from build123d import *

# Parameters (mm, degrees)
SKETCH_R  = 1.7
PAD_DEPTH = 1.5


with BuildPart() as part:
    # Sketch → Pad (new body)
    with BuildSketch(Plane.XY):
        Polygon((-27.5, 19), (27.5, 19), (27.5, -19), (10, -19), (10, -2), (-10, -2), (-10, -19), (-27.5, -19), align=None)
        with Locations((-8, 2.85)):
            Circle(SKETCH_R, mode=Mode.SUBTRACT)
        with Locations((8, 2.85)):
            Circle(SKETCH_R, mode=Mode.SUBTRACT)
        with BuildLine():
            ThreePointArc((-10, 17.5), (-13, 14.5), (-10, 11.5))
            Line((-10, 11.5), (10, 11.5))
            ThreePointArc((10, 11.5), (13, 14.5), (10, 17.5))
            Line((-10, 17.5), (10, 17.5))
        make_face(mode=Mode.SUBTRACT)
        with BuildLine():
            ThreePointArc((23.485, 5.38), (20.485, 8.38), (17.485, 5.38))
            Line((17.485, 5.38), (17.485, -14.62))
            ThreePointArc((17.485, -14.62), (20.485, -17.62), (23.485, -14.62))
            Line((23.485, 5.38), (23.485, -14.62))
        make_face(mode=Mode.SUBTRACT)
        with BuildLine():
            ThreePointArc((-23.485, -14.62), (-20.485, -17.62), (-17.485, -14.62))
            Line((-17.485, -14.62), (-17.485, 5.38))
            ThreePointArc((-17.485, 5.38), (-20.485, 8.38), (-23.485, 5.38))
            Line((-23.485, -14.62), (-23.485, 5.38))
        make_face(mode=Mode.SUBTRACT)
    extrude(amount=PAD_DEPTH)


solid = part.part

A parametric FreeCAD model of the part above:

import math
import FreeCAD as App
import Part
import Sketcher

V = App.Vector


def add_polygon(sketch, points):
    """Adds a closed chain of lines whose ends are joined by coincident constraints."""
    first, n = sketch.GeometryCount, len(points)
    for a, b in zip(points, points[1:] + points[:1]):
        sketch.addGeometry(Part.LineSegment(App.Vector(*a, 0), App.Vector(*b, 0)), False)
    for i in range(n):
        sketch.addConstraint(Sketcher.Constraint("Coincident", first + i, 2, first + (i + 1) % n, 1))

doc = App.newDocument("Part")
body = doc.addObject("PartDesign::Body", "Body")

# Sketch on XY plane
sketch1 = body.newObject("Sketcher::SketchObject", "Sketch")
sketch1.AttachmentSupport = (doc.getObject("XY_Plane"), [""])
sketch1.MapMode = "FlatFace"
add_polygon(sketch1, [(27.5, 19), (-27.5, 19), (-27.5, -19), (-10, -19), (-10, -2), (10, -2), (10, -19), (27.5, -19)])  # lines 0-7
sketch1.addGeometry(Part.LineSegment(V(23.5, 5.4, 0), V(23.5, -14.6, 0)), False)  # 8
sketch1.addGeometry(Part.ArcOfCircle(Part.Circle(V(20.5, -14.6, 0), V(0, 0, 1), 3), math.radians(180), math.radians(360)), False)  # 9
sketch1.addGeometry(Part.LineSegment(V(17.5, -14.6, 0), V(17.5, 5.4, 0)), False)  # 10
sketch1.addGeometry(Part.ArcOfCircle(Part.Circle(V(20.5, 5.4, 0), V(0, 0, 1), 3), math.radians(0), math.radians(180)), False)  # 11
sketch1.addGeometry(Part.LineSegment(V(-23.5, -14.6, 0), V(-23.5, 5.4, 0)), False)  # 12
sketch1.addGeometry(Part.ArcOfCircle(Part.Circle(V(-20.5, 5.4, 0), V(0, 0, 1), 3), math.radians(0), math.radians(180)), False)  # 13
sketch1.addGeometry(Part.LineSegment(V(-17.5, 5.4, 0), V(-17.5, -14.6, 0)), False)  # 14
sketch1.addGeometry(Part.ArcOfCircle(Part.Circle(V(-20.5, -14.6, 0), V(0, 0, 1), 3), math.radians(180), math.radians(360)), False)  # 15
sketch1.addGeometry(Part.Circle(V(8, 2.9, 0), V(0, 0, 1), 1.7), False)  # 16
sketch1.addGeometry(Part.Circle(V(-8, 2.9, 0), V(0, 0, 1), 1.7), False)  # 17
sketch1.addGeometry(Part.LineSegment(V(-10, 17.5, 0), V(10, 17.5, 0)), False)  # 18
sketch1.addGeometry(Part.ArcOfCircle(Part.Circle(V(10, 14.5, 0), V(0, 0, 1), 3), math.radians(-90), math.radians(90)), False)  # 19
sketch1.addGeometry(Part.LineSegment(V(10, 11.5, 0), V(-10, 11.5, 0)), False)  # 20
sketch1.addGeometry(Part.ArcOfCircle(Part.Circle(V(-10, 14.5, 0), V(0, 0, 1), 3), math.radians(90), math.radians(270)), False)  # 21
sketch1.addConstraint([
    Sketcher.Constraint("Tangent", 8, 2, 9, 2),
    Sketcher.Constraint("Tangent", 9, 1, 10, 1),
    Sketcher.Constraint("Tangent", 10, 2, 11, 2),
    Sketcher.Constraint("Tangent", 11, 1, 8, 1),
    Sketcher.Constraint("Tangent", 12, 2, 13, 2),
    Sketcher.Constraint("Tangent", 13, 1, 14, 1),
    Sketcher.Constraint("Tangent", 14, 2, 15, 2),
    Sketcher.Constraint("Tangent", 15, 1, 12, 1),
    Sketcher.Constraint("Tangent", 18, 2, 19, 2),
    Sketcher.Constraint("Tangent", 19, 1, 20, 1),
    Sketcher.Constraint("Tangent", 20, 2, 21, 2),
    Sketcher.Constraint("Tangent", 21, 1, 18, 1),
    Sketcher.Constraint("Horizontal", 0),
    Sketcher.Constraint("Vertical", 1),
    Sketcher.Constraint("Horizontal", 2),
    Sketcher.Constraint("Vertical", 3),
    Sketcher.Constraint("Horizontal", 4),
    Sketcher.Constraint("Vertical", 5),
    Sketcher.Constraint("Horizontal", 6),
    Sketcher.Constraint("Vertical", 7),
    Sketcher.Constraint("Vertical", 8),
    Sketcher.Constraint("Vertical", 10),
    Sketcher.Constraint("Vertical", 12),
    Sketcher.Constraint("Vertical", 14),
    Sketcher.Constraint("Horizontal", 18),
    Sketcher.Constraint("Horizontal", 20),
    Sketcher.Constraint("Equal", 11, 13),
    Sketcher.Constraint("Equal", 16, 17),
    Sketcher.Constraint("Equal", 15, 19),
    Sketcher.Constraint("Symmetric", 0, 2, 6, 2, -1, 1),
    Sketcher.Constraint("Symmetric", 11, 3, 13, 3, -2),
    Sketcher.Constraint("Symmetric", 16, 3, 17, 3, -2),
    Sketcher.Constraint("Symmetric", 2, 2, 5, 2, -2),
    Sketcher.Constraint("Horizontal", 9, 3, 15, 3),
    Sketcher.Constraint("Vertical", 21, 3, 2, 2),
    Sketcher.Constraint("Vertical", 19, 3, 4, 2),
    Sketcher.Constraint("Equal", 20, 8),
    Sketcher.Constraint("Radius", 9, 3.0),
    Sketcher.Constraint("Diameter", 16, 3.4),
    Sketcher.Constraint("DistanceX", 0, 2, 0, 1, 55.0),
    Sketcher.Constraint("DistanceX", 4, 1, 4, 2, 20.0),
    Sketcher.Constraint("DistanceY", 1, 2, 1, 1, 38.0),
    Sketcher.Constraint("DistanceY", 3, 1, 3, 2, 17.0),
    Sketcher.Constraint("DistanceX", -1, 1, 16, 3, 8.0),
    Sketcher.Constraint("DistanceY", -1, 1, 19, 3, 14.5),
    Sketcher.Constraint("DistanceY", 9, 3, -1, 1, 14.62),
    Sketcher.Constraint("DistanceY", -1, 1, 16, 3, 2.85),
    Sketcher.Constraint("DistanceX", 13, 3, 11, 3, 40.97),
])
pad1 = body.newObject("PartDesign::Pad", "Pad")
pad1.Profile = sketch1
pad1.Length = 1.5

doc.recompute()
